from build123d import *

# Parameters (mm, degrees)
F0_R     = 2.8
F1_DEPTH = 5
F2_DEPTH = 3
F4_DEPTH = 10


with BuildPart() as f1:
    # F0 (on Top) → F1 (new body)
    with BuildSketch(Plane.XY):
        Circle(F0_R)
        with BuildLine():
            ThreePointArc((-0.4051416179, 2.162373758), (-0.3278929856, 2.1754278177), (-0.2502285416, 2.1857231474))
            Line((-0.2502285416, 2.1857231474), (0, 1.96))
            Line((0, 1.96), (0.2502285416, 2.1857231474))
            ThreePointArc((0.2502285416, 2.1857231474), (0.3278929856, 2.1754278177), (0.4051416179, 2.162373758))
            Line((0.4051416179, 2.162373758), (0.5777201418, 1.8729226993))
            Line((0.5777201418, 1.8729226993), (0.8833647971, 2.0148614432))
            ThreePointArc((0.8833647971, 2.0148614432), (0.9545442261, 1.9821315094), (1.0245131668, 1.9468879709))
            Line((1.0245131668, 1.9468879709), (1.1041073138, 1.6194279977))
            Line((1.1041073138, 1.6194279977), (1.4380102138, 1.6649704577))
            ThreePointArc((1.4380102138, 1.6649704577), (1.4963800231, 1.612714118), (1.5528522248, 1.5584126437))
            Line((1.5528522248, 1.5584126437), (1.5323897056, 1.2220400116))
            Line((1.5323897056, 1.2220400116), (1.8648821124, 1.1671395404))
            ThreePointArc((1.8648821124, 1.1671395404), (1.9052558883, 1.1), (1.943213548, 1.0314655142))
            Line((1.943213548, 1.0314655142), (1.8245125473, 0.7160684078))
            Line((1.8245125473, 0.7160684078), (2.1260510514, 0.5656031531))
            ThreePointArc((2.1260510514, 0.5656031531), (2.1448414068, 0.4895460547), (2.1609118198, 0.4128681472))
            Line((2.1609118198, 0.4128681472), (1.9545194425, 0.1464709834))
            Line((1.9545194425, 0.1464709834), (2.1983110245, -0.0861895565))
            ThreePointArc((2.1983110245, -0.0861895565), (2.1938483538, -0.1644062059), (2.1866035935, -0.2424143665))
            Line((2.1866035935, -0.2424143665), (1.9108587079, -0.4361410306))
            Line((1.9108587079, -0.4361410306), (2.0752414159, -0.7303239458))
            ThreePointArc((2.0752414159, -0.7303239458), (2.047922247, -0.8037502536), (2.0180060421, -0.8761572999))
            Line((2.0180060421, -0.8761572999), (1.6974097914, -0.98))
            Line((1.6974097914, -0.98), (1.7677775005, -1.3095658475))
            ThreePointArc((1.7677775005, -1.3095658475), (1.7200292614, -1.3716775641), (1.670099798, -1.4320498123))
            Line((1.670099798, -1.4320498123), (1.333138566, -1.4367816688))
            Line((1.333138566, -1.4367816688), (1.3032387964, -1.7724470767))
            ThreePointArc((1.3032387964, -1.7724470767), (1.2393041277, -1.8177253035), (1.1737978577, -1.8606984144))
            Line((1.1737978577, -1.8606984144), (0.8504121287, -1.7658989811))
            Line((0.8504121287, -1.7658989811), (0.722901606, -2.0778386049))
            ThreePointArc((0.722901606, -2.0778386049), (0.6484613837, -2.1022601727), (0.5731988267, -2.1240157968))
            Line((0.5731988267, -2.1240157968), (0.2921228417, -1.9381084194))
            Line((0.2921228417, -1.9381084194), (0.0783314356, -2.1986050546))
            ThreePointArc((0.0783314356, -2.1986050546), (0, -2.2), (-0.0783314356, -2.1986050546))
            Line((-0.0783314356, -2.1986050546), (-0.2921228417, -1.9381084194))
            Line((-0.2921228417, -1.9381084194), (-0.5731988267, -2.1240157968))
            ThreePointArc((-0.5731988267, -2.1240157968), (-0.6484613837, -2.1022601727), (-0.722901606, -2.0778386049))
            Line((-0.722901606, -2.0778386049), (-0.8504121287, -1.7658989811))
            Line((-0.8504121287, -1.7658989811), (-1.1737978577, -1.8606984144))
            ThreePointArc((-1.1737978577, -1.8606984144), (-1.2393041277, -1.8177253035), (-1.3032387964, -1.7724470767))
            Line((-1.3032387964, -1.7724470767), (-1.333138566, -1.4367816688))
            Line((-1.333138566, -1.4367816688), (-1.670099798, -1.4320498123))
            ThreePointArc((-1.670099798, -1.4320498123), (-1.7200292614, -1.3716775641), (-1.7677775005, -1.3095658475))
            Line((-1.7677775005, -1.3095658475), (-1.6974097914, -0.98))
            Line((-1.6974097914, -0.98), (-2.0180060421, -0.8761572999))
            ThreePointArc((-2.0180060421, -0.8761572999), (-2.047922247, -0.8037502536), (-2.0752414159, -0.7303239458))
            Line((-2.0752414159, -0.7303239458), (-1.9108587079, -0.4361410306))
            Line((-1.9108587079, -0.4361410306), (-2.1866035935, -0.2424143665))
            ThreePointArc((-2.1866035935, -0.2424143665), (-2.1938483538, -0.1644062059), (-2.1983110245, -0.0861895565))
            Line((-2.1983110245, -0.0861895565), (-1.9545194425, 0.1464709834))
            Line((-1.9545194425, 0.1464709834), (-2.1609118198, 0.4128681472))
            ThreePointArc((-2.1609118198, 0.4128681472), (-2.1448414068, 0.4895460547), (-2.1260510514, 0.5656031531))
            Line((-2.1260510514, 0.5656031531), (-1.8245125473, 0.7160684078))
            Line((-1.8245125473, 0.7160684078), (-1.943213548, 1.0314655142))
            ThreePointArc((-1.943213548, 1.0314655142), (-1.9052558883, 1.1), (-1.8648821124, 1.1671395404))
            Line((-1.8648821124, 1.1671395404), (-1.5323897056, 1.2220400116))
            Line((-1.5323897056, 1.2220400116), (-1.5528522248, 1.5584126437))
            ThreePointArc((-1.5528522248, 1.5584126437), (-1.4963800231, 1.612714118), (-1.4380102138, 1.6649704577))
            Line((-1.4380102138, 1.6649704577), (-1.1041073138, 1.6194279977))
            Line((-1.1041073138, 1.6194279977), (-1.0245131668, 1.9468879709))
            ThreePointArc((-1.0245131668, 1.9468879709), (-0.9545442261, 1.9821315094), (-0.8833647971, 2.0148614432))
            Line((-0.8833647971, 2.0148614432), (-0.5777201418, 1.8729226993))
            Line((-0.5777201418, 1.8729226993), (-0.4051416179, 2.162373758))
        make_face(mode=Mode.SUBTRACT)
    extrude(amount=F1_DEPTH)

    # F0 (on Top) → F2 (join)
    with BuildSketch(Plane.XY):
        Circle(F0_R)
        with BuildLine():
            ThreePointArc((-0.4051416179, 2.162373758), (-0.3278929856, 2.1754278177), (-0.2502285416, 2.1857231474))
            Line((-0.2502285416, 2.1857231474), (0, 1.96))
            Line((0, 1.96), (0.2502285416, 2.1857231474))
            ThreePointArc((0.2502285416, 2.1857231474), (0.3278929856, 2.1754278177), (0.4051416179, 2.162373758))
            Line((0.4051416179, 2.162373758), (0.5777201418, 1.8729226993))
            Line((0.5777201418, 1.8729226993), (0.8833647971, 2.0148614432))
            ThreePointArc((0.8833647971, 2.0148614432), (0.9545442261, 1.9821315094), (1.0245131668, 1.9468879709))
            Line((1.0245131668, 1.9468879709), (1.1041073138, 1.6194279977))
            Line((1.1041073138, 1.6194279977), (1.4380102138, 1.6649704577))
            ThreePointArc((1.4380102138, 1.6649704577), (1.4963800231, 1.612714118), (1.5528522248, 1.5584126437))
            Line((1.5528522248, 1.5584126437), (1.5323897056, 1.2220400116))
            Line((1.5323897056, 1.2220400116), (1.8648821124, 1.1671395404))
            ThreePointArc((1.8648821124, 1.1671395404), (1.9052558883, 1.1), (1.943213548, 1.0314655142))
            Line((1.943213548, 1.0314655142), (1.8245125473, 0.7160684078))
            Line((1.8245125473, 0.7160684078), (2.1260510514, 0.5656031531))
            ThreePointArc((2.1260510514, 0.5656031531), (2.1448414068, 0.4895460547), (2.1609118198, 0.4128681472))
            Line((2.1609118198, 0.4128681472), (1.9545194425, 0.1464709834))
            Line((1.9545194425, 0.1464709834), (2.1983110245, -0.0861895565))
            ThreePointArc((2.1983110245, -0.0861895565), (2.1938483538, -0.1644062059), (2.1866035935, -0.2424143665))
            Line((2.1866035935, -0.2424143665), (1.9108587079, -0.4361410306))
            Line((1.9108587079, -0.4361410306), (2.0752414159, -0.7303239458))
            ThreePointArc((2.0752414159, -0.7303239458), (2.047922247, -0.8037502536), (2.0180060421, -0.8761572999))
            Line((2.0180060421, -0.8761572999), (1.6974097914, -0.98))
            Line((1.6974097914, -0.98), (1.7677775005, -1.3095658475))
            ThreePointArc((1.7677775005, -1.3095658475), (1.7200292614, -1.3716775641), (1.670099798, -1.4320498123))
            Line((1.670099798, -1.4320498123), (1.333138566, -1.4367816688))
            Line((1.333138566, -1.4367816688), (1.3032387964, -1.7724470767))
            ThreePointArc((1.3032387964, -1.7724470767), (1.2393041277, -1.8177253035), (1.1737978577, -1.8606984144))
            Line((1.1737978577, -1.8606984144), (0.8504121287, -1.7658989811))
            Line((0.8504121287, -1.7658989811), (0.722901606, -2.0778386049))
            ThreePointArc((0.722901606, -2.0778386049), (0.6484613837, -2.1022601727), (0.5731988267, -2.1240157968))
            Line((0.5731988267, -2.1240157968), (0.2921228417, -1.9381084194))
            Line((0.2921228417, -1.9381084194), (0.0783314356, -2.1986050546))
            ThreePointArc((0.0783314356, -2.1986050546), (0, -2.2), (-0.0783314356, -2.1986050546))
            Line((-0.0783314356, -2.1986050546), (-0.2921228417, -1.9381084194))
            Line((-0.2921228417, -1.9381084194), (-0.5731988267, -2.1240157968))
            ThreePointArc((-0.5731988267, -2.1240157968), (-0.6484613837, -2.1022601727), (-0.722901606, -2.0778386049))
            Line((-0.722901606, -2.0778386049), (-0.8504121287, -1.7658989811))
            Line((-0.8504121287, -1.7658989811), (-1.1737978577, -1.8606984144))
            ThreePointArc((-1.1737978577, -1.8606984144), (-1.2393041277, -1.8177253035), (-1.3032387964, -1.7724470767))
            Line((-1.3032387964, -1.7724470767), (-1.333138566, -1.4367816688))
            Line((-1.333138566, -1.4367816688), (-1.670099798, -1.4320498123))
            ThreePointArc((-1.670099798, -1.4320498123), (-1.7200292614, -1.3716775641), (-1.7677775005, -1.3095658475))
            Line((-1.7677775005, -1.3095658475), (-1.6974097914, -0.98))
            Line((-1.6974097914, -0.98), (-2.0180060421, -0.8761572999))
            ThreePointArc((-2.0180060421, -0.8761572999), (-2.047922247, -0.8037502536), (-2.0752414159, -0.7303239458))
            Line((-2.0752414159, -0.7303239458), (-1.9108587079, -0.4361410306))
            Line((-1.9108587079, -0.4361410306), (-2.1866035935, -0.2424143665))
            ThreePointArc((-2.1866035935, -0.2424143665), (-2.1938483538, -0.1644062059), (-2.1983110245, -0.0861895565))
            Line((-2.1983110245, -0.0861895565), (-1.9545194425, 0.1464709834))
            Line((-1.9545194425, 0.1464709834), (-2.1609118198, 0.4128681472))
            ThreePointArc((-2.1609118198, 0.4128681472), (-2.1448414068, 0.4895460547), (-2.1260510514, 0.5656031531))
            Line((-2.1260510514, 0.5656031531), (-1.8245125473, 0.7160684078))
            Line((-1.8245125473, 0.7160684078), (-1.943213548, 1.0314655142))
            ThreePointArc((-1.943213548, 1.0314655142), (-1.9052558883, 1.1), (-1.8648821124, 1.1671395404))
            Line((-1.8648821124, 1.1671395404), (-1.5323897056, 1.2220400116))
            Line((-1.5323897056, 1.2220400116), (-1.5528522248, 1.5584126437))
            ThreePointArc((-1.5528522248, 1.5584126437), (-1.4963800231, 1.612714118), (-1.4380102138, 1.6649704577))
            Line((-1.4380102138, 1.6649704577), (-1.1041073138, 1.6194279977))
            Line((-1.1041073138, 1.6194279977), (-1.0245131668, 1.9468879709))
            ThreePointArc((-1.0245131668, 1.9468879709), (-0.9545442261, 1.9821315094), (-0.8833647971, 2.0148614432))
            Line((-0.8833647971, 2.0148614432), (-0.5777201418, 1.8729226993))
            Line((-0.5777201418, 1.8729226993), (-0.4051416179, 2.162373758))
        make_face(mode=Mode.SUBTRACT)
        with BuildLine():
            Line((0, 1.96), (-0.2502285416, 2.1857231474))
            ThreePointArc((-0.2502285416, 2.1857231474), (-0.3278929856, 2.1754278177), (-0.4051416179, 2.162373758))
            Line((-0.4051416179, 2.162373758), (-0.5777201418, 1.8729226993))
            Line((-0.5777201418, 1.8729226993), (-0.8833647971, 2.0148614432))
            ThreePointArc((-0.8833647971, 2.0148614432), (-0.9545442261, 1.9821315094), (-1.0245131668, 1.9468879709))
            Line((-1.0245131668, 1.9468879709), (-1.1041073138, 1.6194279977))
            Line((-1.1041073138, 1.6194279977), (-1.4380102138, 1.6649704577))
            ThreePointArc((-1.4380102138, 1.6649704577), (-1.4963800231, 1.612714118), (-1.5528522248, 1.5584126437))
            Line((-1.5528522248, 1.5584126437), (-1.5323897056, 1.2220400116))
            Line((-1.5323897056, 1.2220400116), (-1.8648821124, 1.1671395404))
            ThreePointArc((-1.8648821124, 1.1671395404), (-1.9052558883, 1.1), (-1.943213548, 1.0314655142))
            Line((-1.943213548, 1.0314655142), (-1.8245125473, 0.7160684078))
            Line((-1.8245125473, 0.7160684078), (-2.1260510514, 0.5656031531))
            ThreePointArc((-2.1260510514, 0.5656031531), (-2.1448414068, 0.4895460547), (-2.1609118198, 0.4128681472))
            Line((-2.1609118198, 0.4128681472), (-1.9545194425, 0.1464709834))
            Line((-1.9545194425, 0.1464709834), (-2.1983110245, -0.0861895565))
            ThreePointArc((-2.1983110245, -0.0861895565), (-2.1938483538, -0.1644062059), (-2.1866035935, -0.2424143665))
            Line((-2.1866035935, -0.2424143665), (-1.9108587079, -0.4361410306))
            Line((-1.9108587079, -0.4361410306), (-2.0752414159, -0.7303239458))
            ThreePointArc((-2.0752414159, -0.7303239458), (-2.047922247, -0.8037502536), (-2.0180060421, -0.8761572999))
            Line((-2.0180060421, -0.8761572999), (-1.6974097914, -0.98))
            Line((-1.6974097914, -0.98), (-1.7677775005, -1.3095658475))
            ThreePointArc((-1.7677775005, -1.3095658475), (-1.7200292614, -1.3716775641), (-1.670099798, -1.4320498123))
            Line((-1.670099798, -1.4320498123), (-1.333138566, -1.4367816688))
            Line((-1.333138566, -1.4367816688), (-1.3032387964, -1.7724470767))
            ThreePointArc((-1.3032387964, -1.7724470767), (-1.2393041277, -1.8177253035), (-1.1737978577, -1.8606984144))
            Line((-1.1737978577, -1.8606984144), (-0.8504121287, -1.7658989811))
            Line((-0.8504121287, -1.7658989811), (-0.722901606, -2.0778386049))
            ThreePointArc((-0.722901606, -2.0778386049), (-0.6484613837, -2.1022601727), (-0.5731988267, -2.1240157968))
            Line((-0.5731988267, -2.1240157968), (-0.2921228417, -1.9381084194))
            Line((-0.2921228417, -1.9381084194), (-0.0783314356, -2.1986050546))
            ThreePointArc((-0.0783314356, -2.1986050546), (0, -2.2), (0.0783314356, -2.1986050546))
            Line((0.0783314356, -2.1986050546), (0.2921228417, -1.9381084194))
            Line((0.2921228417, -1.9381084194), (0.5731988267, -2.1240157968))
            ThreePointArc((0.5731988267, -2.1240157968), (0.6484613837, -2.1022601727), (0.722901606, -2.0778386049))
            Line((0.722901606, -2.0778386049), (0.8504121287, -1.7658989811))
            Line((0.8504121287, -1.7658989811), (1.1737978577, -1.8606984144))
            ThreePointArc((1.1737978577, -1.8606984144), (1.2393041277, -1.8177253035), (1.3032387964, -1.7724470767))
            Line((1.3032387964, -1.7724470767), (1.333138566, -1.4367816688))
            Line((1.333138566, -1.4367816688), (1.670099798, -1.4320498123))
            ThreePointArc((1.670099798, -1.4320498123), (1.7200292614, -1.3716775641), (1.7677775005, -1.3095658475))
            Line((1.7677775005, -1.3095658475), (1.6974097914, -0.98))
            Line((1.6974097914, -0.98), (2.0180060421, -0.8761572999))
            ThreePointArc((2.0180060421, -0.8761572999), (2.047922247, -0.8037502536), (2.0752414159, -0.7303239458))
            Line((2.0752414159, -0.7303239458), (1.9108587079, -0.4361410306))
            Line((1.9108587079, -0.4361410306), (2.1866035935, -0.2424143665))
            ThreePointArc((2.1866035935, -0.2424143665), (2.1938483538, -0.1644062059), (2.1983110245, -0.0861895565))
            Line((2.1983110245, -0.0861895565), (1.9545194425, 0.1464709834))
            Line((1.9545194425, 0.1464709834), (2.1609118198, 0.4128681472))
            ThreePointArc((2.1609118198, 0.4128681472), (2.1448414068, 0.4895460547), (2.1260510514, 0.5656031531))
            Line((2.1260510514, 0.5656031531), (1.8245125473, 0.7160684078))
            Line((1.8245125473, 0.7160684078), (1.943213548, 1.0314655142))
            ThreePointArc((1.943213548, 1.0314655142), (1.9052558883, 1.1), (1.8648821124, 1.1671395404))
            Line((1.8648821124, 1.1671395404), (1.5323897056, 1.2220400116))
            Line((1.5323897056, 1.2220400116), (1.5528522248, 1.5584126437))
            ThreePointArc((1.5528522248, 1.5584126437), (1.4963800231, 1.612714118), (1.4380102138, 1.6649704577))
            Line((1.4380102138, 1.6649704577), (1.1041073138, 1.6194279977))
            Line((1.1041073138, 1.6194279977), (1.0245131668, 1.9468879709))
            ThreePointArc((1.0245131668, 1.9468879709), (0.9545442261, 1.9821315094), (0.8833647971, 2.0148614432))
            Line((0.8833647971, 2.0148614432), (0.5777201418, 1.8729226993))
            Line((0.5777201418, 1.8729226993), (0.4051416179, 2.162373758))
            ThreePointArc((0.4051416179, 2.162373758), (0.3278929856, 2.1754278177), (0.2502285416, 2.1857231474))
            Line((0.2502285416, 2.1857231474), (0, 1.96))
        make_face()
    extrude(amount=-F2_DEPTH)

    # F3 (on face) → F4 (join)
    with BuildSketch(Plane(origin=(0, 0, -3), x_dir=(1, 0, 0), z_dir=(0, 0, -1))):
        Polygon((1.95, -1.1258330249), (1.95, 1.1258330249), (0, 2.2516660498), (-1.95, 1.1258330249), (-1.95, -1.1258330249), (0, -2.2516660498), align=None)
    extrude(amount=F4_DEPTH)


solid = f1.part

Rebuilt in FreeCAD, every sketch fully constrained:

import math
import FreeCAD as App
import Part
import Sketcher
Q = App.Units.Quantity


def add_polygon(sketch, points):
    """Adds a closed chain of lines whose ends are joined by coincident constraints."""
    first, n = sketch.GeometryCount, len(points)
    for a, b in zip(points, points[1:] + points[:1]):
        sketch.addGeometry(Part.LineSegment(App.Vector(*a, 0), App.Vector(*b, 0)), False)
    for i in range(n):
        sketch.addConstraint(Sketcher.Constraint("Coincident", first + i, 2, first + (i + 1) % n, 1))

doc = App.newDocument("Part")
body = doc.addObject("PartDesign::Body", "Body")

sketch1 = body.newObject("Sketcher::SketchObject", "Sketch")
sketch1.AttachmentSupport = (doc.getObject("XY_Plane"), [""])
sketch1.MapMode = "FlatFace"
sketch1.addGeometry(Part.Circle(App.Vector(0, 0, 0), App.Vector(0, 0, 1), 2.8), False)
sketch1.addGeometry(Part.LineSegment(App.Vector(-0.58, 1.87, 0), App.Vector(-0.41, 2.16, 0)), False)
sketch1.addGeometry(Part.ArcOfCircle(Part.Circle(App.Vector(0, 0, 0), App.Vector(0, 0, 1), 2.2), math.radians(96.53), math.radians(100.61)), False)
sketch1.addGeometry(Part.LineSegment(App.Vector(-0.25, 2.19, 0), App.Vector(0, 1.96, 0)), False)
sketch1.addGeometry(Part.LineSegment(App.Vector(0, 1.96, 0), App.Vector(0.25, 2.19, 0)), False)
sketch1.addGeometry(Part.ArcOfCircle(Part.Circle(App.Vector(0, 0, 0), App.Vector(0, 0, 1), 2.2), math.radians(79.39), math.radians(83.47)), False)
sketch1.addGeometry(Part.LineSegment(App.Vector(0.41, 2.16, 0), App.Vector(0.58, 1.87, 0)), False)
sketch1.addGeometry(Part.LineSegment(App.Vector(0.58, 1.87, 0), App.Vector(0.88, 2.01, 0)), False)
sketch1.addGeometry(Part.ArcOfCircle(Part.Circle(App.Vector(0, 0, 0), App.Vector(0, 0, 1), 2.2), math.radians(62.25), math.radians(66.33)), False)
sketch1.addGeometry(Part.LineSegment(App.Vector(1.02, 1.95, 0), App.Vector(1.1, 1.62, 0)), False)
sketch1.addGeometry(Part.LineSegment(App.Vector(1.1, 1.62, 0), App.Vector(1.44, 1.66, 0)), False)
sketch1.addGeometry(Part.ArcOfCircle(Part.Circle(App.Vector(0, 0, 0), App.Vector(0, 0, 1), 2.2), math.radians(45.1), math.radians(49.18)), False)
sketch1.addGeometry(Part.LineSegment(App.Vector(1.55, 1.56, 0), App.Vector(1.53, 1.22, 0)), False)
sketch1.addGeometry(Part.LineSegment(App.Vector(1.53, 1.22, 0), App.Vector(1.86, 1.17, 0)), False)
sketch1.addGeometry(Part.ArcOfCircle(Part.Circle(App.Vector(0, 0, 0), App.Vector(0, 0, 1), 2.2), math.radians(27.96), math.radians(32.04)), False)
sketch1.addGeometry(Part.LineSegment(App.Vector(1.94, 1.03, 0), App.Vector(1.82, 0.72, 0)), False)
sketch1.addGeometry(Part.LineSegment(App.Vector(1.82, 0.72, 0), App.Vector(2.13, 0.57, 0)), False)
sketch1.addGeometry(Part.ArcOfCircle(Part.Circle(App.Vector(0, 0, 0), App.Vector(0, 0, 1), 2.2), math.radians(10.82), math.radians(14.9)), False)
sketch1.addGeometry(Part.LineSegment(App.Vector(2.16, 0.41, 0), App.Vector(1.95, 0.15, 0)), False)
sketch1.addGeometry(Part.LineSegment(App.Vector(1.95, 0.15, 0), App.Vector(2.2, -0.09, 0)), False)
sketch1.addGeometry(Part.ArcOfCircle(Part.Circle(App.Vector(0, 0, 0), App.Vector(0, 0, 1), 2.2), math.radians(-6.33), math.radians(-2.25)), False)
sketch1.addGeometry(Part.LineSegment(App.Vector(2.19, -0.24, 0), App.Vector(1.91, -0.44, 0)), False)
sketch1.addGeometry(Part.LineSegment(App.Vector(1.91, -0.44, 0), App.Vector(2.08, -0.73, 0)), False)
sketch1.addGeometry(Part.ArcOfCircle(Part.Circle(App.Vector(0, 0, 0), App.Vector(0, 0, 1), 2.2), math.radians(-23.47), math.radians(-19.39)), False)
sketch1.addGeometry(Part.LineSegment(App.Vector(2.02, -0.88, 0), App.Vector(1.7, -0.98, 0)), False)
sketch1.addGeometry(Part.LineSegment(App.Vector(1.7, -0.98, 0), App.Vector(1.77, -1.31, 0)), False)
sketch1.addGeometry(Part.ArcOfCircle(Part.Circle(App.Vector(0, 0, 0), App.Vector(0, 0, 1), 2.2), math.radians(-40.61), math.radians(-36.53)), False)
sketch1.addGeometry(Part.LineSegment(App.Vector(1.67, -1.43, 0), App.Vector(1.33, -1.44, 0)), False)
sketch1.addGeometry(Part.LineSegment(App.Vector(1.33, -1.44, 0), App.Vector(1.3, -1.77, 0)), False)
sketch1.addGeometry(Part.ArcOfCircle(Part.Circle(App.Vector(0, 0, 0), App.Vector(0, 0, 1), 2.2), math.radians(-57.75), math.radians(-53.67)), False)
sketch1.addGeometry(Part.LineSegment(App.Vector(1.17, -1.86, 0), App.Vector(0.85, -1.77, 0)), False)
sketch1.addGeometry(Part.LineSegment(App.Vector(0.85, -1.77, 0), App.Vector(0.72, -2.08, 0)), False)
sketch1.addGeometry(Part.ArcOfCircle(Part.Circle(App.Vector(0, 0, 0), App.Vector(0, 0, 1), 2.2), math.radians(-74.9), math.radians(-70.82)), False)
sketch1.addGeometry(Part.LineSegment(App.Vector(0.57, -2.12, 0), App.Vector(0.29, -1.94, 0)), False)
sketch1.addGeometry(Part.LineSegment(App.Vector(0.29, -1.94, 0), App.Vector(0.08, -2.2, 0)), False)
sketch1.addGeometry(Part.ArcOfCircle(Part.Circle(App.Vector(0, 0, 0), App.Vector(0, 0, 1), 2.2), math.radians(-92.04), math.radians(-87.96)), False)
sketch1.addGeometry(Part.LineSegment(App.Vector(-0.08, -2.2, 0), App.Vector(-0.29, -1.94, 0)), False)
sketch1.addGeometry(Part.LineSegment(App.Vector(-0.29, -1.94, 0), App.Vector(-0.57, -2.12, 0)), False)
sketch1.addGeometry(Part.ArcOfCircle(Part.Circle(App.Vector(0, 0, 0), App.Vector(0, 0, 1), 2.2), math.radians(-109.18), math.radians(-105.1)), False)
sketch1.addGeometry(Part.LineSegment(App.Vector(-0.72, -2.08, 0), App.Vector(-0.85, -1.77, 0)), False)
sketch1.addGeometry(Part.LineSegment(App.Vector(-0.85, -1.77, 0), App.Vector(-1.17, -1.86, 0)), False)
sketch1.addGeometry(Part.ArcOfCircle(Part.Circle(App.Vector(0, 0, 0), App.Vector(0, 0, 1), 2.2), math.radians(-126.33), math.radians(-122.25)), False)
sketch1.addGeometry(Part.LineSegment(App.Vector(-1.3, -1.77, 0), App.Vector(-1.33, -1.44, 0)), False)
sketch1.addGeometry(Part.LineSegment(App.Vector(-1.33, -1.44, 0), App.Vector(-1.67, -1.43, 0)), False)
sketch1.addGeometry(Part.ArcOfCircle(Part.Circle(App.Vector(0, 0, 0), App.Vector(0, 0, 1), 2.2), math.radians(-143.47), math.radians(-139.39)), False)
sketch1.addGeometry(Part.LineSegment(App.Vector(-1.77, -1.31, 0), App.Vector(-1.7, -0.98, 0)), False)
sketch1.addGeometry(Part.LineSegment(App.Vector(-1.7, -0.98, 0), App.Vector(-2.02, -0.88, 0)), False)
sketch1.addGeometry(Part.ArcOfCircle(Part.Circle(App.Vector(0, 0, 0), App.Vector(0, 0, 1), 2.2), math.radians(-160.61), math.radians(-156.53)), False)
sketch1.addGeometry(Part.LineSegment(App.Vector(-2.08, -0.73, 0), App.Vector(-1.91, -0.44, 0)), False)
sketch1.addGeometry(Part.LineSegment(App.Vector(-1.91, -0.44, 0), App.Vector(-2.19, -0.24, 0)), False)
sketch1.addGeometry(Part.ArcOfCircle(Part.Circle(App.Vector(0, 0, 0), App.Vector(0, 0, 1), 2.2), math.radians(-177.75), math.radians(-173.67)), False)
sketch1.addGeometry(Part.LineSegment(App.Vector(-2.2, -0.09, 0), App.Vector(-1.95, 0.15, 0)), False)
sketch1.addGeometry(Part.LineSegment(App.Vector(-1.95, 0.15, 0), App.Vector(-2.16, 0.41, 0)), False)
sketch1.addGeometry(Part.ArcOfCircle(Part.Circle(App.Vector(0, 0, 0), App.Vector(0, 0, 1), 2.2), math.radians(165.1), math.radians(169.18)), False)
sketch1.addGeometry(Part.LineSegment(App.Vector(-2.13, 0.57, 0), App.Vector(-1.82, 0.72, 0)), False)
sketch1.addGeometry(Part.LineSegment(App.Vector(-1.82, 0.72, 0), App.Vector(-1.94, 1.03, 0)), False)
sketch1.addGeometry(Part.ArcOfCircle(Part.Circle(App.Vector(0, 0, 0), App.Vector(0, 0, 1), 2.2), math.radians(147.96), math.radians(152.04)), False)
sketch1.addGeometry(Part.LineSegment(App.Vector(-1.86, 1.17, 0), App.Vector(-1.53, 1.22, 0)), False)
sketch1.addGeometry(Part.LineSegment(App.Vector(-1.53, 1.22, 0), App.Vector(-1.55, 1.56, 0)), False)
sketch1.addGeometry(Part.ArcOfCircle(Part.Circle(App.Vector(0, 0, 0), App.Vector(0, 0, 1), 2.2), math.radians(130.82), math.radians(134.9)), False)
sketch1.addGeometry(Part.LineSegment(App.Vector(-1.44, 1.66, 0), App.Vector(-1.1, 1.62, 0)), False)
sketch1.addGeometry(Part.LineSegment(App.Vector(-1.1, 1.62, 0), App.Vector(-1.02, 1.95, 0)), False)
sketch1.addGeometry(Part.ArcOfCircle(Part.Circle(App.Vector(0, 0, 0), App.Vector(0, 0, 1), 2.2), math.radians(113.67), math.radians(117.75)), False)
sketch1.addGeometry(Part.LineSegment(App.Vector(-0.88, 2.01, 0), App.Vector(-0.58, 1.87, 0)), False)
sketch1.addConstraint(Sketcher.Constraint("Coincident", 1, 2, 2, 2))
sketch1.addConstraint(Sketcher.Constraint("Coincident", 2, 1, 3, 1))
sketch1.addConstraint(Sketcher.Constraint("Coincident", 3, 2, 4, 1))
sketch1.addConstraint(Sketcher.Constraint("Coincident", 4, 2, 5, 2))
sketch1.addConstraint(Sketcher.Constraint("Coincident", 5, 1, 6, 1))
sketch1.addConstraint(Sketcher.Constraint("Coincident", 6, 2, 7, 1))
sketch1.addConstraint(Sketcher.Constraint("Coincident", 7, 2, 8, 2))
sketch1.addConstraint(Sketcher.Constraint("Coincident", 8, 1, 9, 1))
sketch1.addConstraint(Sketcher.Constraint("Coincident", 9, 2, 10, 1))
sketch1.addConstraint(Sketcher.Constraint("Coincident", 10, 2, 11, 2))
sketch1.addConstraint(Sketcher.Constraint("Coincident", 11, 1, 12, 1))
sketch1.addConstraint(Sketcher.Constraint("Coincident", 12, 2, 13, 1))
sketch1.addConstraint(Sketcher.Constraint("Coincident", 13, 2, 14, 2))
sketch1.addConstraint(Sketcher.Constraint("Coincident", 14, 1, 15, 1))
sketch1.addConstraint(Sketcher.Constraint("Coincident", 15, 2, 16, 1))
sketch1.addConstraint(Sketcher.Constraint("Coincident", 16, 2, 17, 2))
sketch1.addConstraint(Sketcher.Constraint("Coincident", 17, 1, 18, 1))
sketch1.addConstraint(Sketcher.Constraint("Coincident", 18, 2, 19, 1))
sketch1.addConstraint(Sketcher.Constraint("Coincident", 19, 2, 20, 2))
sketch1.addConstraint(Sketcher.Constraint("Coincident", 20, 1, 21, 1))
sketch1.addConstraint(Sketcher.Constraint("Coincident", 21, 2, 22, 1))
sketch1.addConstraint(Sketcher.Constraint("Coincident", 22, 2, 23, 2))
sketch1.addConstraint(Sketcher.Constraint("Coincident", 23, 1, 24, 1))
sketch1.addConstraint(Sketcher.Constraint("Coincident", 24, 2, 25, 1))
sketch1.addConstraint(Sketcher.Constraint("Coincident", 25, 2, 26, 2))
sketch1.addConstraint(Sketcher.Constraint("Coincident", 26, 1, 27, 1))
sketch1.addConstraint(Sketcher.Constraint("Coincident", 27, 2, 28, 1))
sketch1.addConstraint(Sketcher.Constraint("Coincident", 28, 2, 29, 2))
sketch1.addConstraint(Sketcher.Constraint("Coincident", 29, 1, 30, 1))
sketch1.addConstraint(Sketcher.Constraint("Coincident", 30, 2, 31, 1))
sketch1.addConstraint(Sketcher.Constraint("Coincident", 31, 2, 32, 2))
sketch1.addConstraint(Sketcher.Constraint("Coincident", 32, 1, 33, 1))
sketch1.addConstraint(Sketcher.Constraint("Coincident", 33, 2, 34, 1))
sketch1.addConstraint(Sketcher.Constraint("Coincident", 34, 2, 35, 2))
sketch1.addConstraint(Sketcher.Constraint("Coincident", 35, 1, 36, 1))
sketch1.addConstraint(Sketcher.Constraint("Coincident", 36, 2, 37, 1))
sketch1.addConstraint(Sketcher.Constraint("Coincident", 37, 2, 38, 2))
sketch1.addConstraint(Sketcher.Constraint("Coincident", 38, 1, 39, 1))
sketch1.addConstraint(Sketcher.Constraint("Coincident", 39, 2, 40, 1))
sketch1.addConstraint(Sketcher.Constraint("Coincident", 40, 2, 41, 2))
sketch1.addConstraint(Sketcher.Constraint("Coincident", 41, 1, 42, 1))
sketch1.addConstraint(Sketcher.Constraint("Coincident", 42, 2, 43, 1))
sketch1.addConstraint(Sketcher.Constraint("Coincident", 43, 2, 44, 2))
sketch1.addConstraint(Sketcher.Constraint("Coincident", 44, 1, 45, 1))
sketch1.addConstraint(Sketcher.Constraint("Coincident", 45, 2, 46, 1))
sketch1.addConstraint(Sketcher.Constraint("Coincident", 46, 2, 47, 2))
sketch1.addConstraint(Sketcher.Constraint("Coincident", 47, 1, 48, 1))
sketch1.addConstraint(Sketcher.Constraint("Coincident", 48, 2, 49, 1))
sketch1.addConstraint(Sketcher.Constraint("Coincident", 49, 2, 50, 2))
sketch1.addConstraint(Sketcher.Constraint("Coincident", 50, 1, 51, 1))
sketch1.addConstraint(Sketcher.Constraint("Coincident", 51, 2, 52, 1))
sketch1.addConstraint(Sketcher.Constraint("Coincident", 52, 2, 53, 2))
sketch1.addConstraint(Sketcher.Constraint("Coincident", 53, 1, 54, 1))
sketch1.addConstraint(Sketcher.Constraint("Coincident", 54, 2, 55, 1))
sketch1.addConstraint(Sketcher.Constraint("Coincident", 55, 2, 56, 2))
sketch1.addConstraint(Sketcher.Constraint("Coincident", 56, 1, 57, 1))
sketch1.addConstraint(Sketcher.Constraint("Coincident", 57, 2, 58, 1))
sketch1.addConstraint(Sketcher.Constraint("Coincident", 58, 2, 59, 2))
sketch1.addConstraint(Sketcher.Constraint("Coincident", 59, 1, 60, 1))
sketch1.addConstraint(Sketcher.Constraint("Coincident", 60, 2, 61, 1))
sketch1.addConstraint(Sketcher.Constraint("Coincident", 61, 2, 62, 2))
sketch1.addConstraint(Sketcher.Constraint("Coincident", 62, 1, 63, 1))
sketch1.addConstraint(Sketcher.Constraint("Coincident", 63, 2, 1, 1))
sketch1.addConstraint(Sketcher.Constraint("Coincident", 0, 3, -1, 1))
sketch1.addConstraint(Sketcher.Constraint("Coincident", 2, 3, -1, 1))
sketch1.addConstraint(Sketcher.Constraint("Coincident", 5, 3, -1, 1))
sketch1.addConstraint(Sketcher.Constraint("Coincident", 8, 3, -1, 1))
sketch1.addConstraint(Sketcher.Constraint("Coincident", 11, 3, -1, 1))
sketch1.addConstraint(Sketcher.Constraint("Coincident", 14, 3, -1, 1))
sketch1.addConstraint(Sketcher.Constraint("Coincident", 17, 3, -1, 1))
sketch1.addConstraint(Sketcher.Constraint("Coincident", 20, 3, -1, 1))
sketch1.addConstraint(Sketcher.Constraint("Coincident", 23, 3, -1, 1))
sketch1.addConstraint(Sketcher.Constraint("Coincident", 26, 3, -1, 1))
sketch1.addConstraint(Sketcher.Constraint("Coincident", 29, 3, -1, 1))
sketch1.addConstraint(Sketcher.Constraint("Coincident", 32, 3, -1, 1))
sketch1.addConstraint(Sketcher.Constraint("Coincident", 35, 3, -1, 1))
sketch1.addConstraint(Sketcher.Constraint("Coincident", 38, 3, -1, 1))
sketch1.addConstraint(Sketcher.Constraint("Coincident", 41, 3, -1, 1))
sketch1.addConstraint(Sketcher.Constraint("Coincident", 44, 3, -1, 1))
sketch1.addConstraint(Sketcher.Constraint("Coincident", 47, 3, -1, 1))
sketch1.addConstraint(Sketcher.Constraint("Coincident", 50, 3, -1, 1))
sketch1.addConstraint(Sketcher.Constraint("Coincident", 53, 3, -1, 1))
sketch1.addConstraint(Sketcher.Constraint("Coincident", 56, 3, -1, 1))
sketch1.addConstraint(Sketcher.Constraint("Coincident", 59, 3, -1, 1))
sketch1.addConstraint(Sketcher.Constraint("Coincident", 62, 3, -1, 1))
sketch1.addConstraint(Sketcher.Constraint("Equal", 2, 5))
sketch1.addConstraint(Sketcher.Constraint("Equal", 5, 8))
sketch1.addConstraint(Sketcher.Constraint("Equal", 8, 11))
sketch1.addConstraint(Sketcher.Constraint("Equal", 11, 14))
sketch1.addConstraint(Sketcher.Constraint("Equal", 14, 17))
sketch1.addConstraint(Sketcher.Constraint("Equal", 17, 20))
sketch1.addConstraint(Sketcher.Constraint("Equal", 20, 23))
sketch1.addConstraint(Sketcher.Constraint("Equal", 23, 26))
sketch1.addConstraint(Sketcher.Constraint("Equal", 26, 29))
sketch1.addConstraint(Sketcher.Constraint("Equal", 29, 32))
sketch1.addConstraint(Sketcher.Constraint("Equal", 32, 35))
sketch1.addConstraint(Sketcher.Constraint("Equal", 35, 38))
sketch1.addConstraint(Sketcher.Constraint("Equal", 38, 41))
sketch1.addConstraint(Sketcher.Constraint("Equal", 41, 44))
sketch1.addConstraint(Sketcher.Constraint("Equal", 44, 47))
sketch1.addConstraint(Sketcher.Constraint("Equal", 47, 50))
sketch1.addConstraint(Sketcher.Constraint("Equal", 50, 53))
sketch1.addConstraint(Sketcher.Constraint("Equal", 53, 56))
sketch1.addConstraint(Sketcher.Constraint("Equal", 56, 59))
sketch1.addConstraint(Sketcher.Constraint("Equal", 59, 62))
sketch1.addConstraint(Sketcher.Constraint("Symmetric", 33, 2, 36, 2, -2))
sketch1.addConstraint(Sketcher.Constraint("Symmetric", 30, 2, 39, 2, -2))
sketch1.addConstraint(Sketcher.Constraint("Symmetric", 27, 2, 42, 2, -2))
sketch1.addConstraint(Sketcher.Constraint("Symmetric", 24, 2, 45, 2, -2))
sketch1.addConstraint(Sketcher.Constraint("Symmetric", 21, 2, 48, 2, -2))
sketch1.addConstraint(Sketcher.Constraint("Symmetric", 18, 2, 51, 2, -2))
sketch1.addConstraint(Sketcher.Constraint("Symmetric", 15, 2, 54, 2, -2))
sketch1.addConstraint(Sketcher.Constraint("Symmetric", 12, 2, 57, 2, -2))
sketch1.addConstraint(Sketcher.Constraint("Symmetric", 9, 2, 60, 2, -2))
sketch1.addConstraint(Sketcher.Constraint("Symmetric", 6, 2, 63, 2, -2))
sketch1.addConstraint(Sketcher.Constraint("PointOnObject", 3, 2, -2))
sketch1.addConstraint(Sketcher.Constraint("Horizontal", 2, 1, 4, 2))
sketch1.addConstraint(Sketcher.Constraint("Horizontal", 1, 2, 5, 1))
sketch1.addConstraint(Sketcher.Constraint("Horizontal", 34, 2, 35, 1))
sketch1.addConstraint(Sketcher.Constraint("Horizontal", 32, 1, 37, 2))
sketch1.addConstraint(Sketcher.Constraint("Horizontal", 31, 2, 38, 1))
sketch1.addConstraint(Sketcher.Constraint("Horizontal", 29, 1, 40, 2))
sketch1.addConstraint(Sketcher.Constraint("Horizontal", 28, 2, 41, 1))
sketch1.addConstraint(Sketcher.Constraint("Horizontal", 26, 1, 43, 2))
sketch1.addConstraint(Sketcher.Constraint("Horizontal", 25, 2, 44, 1))
sketch1.addConstraint(Sketcher.Constraint("Horizontal", 23, 1, 46, 2))
sketch1.addConstraint(Sketcher.Constraint("Horizontal", 22, 2, 47, 1))
sketch1.addConstraint(Sketcher.Constraint("Horizontal", 20, 1, 49, 2))
sketch1.addConstraint(Sketcher.Constraint("Horizontal", 19, 2, 50, 1))
sketch1.addConstraint(Sketcher.Constraint("Horizontal", 17, 1, 52, 2))
sketch1.addConstraint(Sketcher.Constraint("Horizontal", 16, 2, 53, 1))
sketch1.addConstraint(Sketcher.Constraint("Horizontal", 14, 1, 55, 2))
sketch1.addConstraint(Sketcher.Constraint("Horizontal", 13, 2, 56, 1))
sketch1.addConstraint(Sketcher.Constraint("Horizontal", 11, 1, 58, 2))
sketch1.addConstraint(Sketcher.Constraint("Horizontal", 10, 2, 59, 1))
sketch1.addConstraint(Sketcher.Constraint("Horizontal", 8, 1, 61, 2))
sketch1.addConstraint(Sketcher.Constraint("Horizontal", 7, 2, 62, 1))
sketch1.addConstraint(Sketcher.Constraint("Equal", 1, 3))
sketch1.addConstraint(Sketcher.Constraint("Equal", 6, 7))
sketch1.addConstraint(Sketcher.Constraint("Equal", 7, 9))
sketch1.addConstraint(Sketcher.Constraint("Equal", 9, 10))
sketch1.addConstraint(Sketcher.Constraint("Equal", 10, 12))
sketch1.addConstraint(Sketcher.Constraint("Equal", 12, 13))
sketch1.addConstraint(Sketcher.Constraint("Equal", 13, 15))
sketch1.addConstraint(Sketcher.Constraint("Equal", 15, 16))
sketch1.addConstraint(Sketcher.Constraint("Equal", 16, 18))
sketch1.addConstraint(Sketcher.Constraint("Equal", 18, 19))
sketch1.addConstraint(Sketcher.Constraint("Equal", 19, 21))
sketch1.addConstraint(Sketcher.Constraint("Equal", 21, 22))
sketch1.addConstraint(Sketcher.Constraint("Equal", 22, 24))
sketch1.addConstraint(Sketcher.Constraint("Equal", 24, 25))
sketch1.addConstraint(Sketcher.Constraint("Equal", 25, 27))
sketch1.addConstraint(Sketcher.Constraint("Equal", 27, 28))
sketch1.addConstraint(Sketcher.Constraint("Equal", 28, 30))
sketch1.addConstraint(Sketcher.Constraint("Equal", 30, 31))
sketch1.addConstraint(Sketcher.Constraint("Equal", 31, 33))
sketch1.addConstraint(Sketcher.Constraint("Equal", 33, 34))
sketch1.addConstraint(Sketcher.Constraint("Diameter", 0, 5.6))
sketch1.addConstraint(Sketcher.Constraint("Radius", 2, 2.2))
sketch1.addConstraint(Sketcher.Constraint("DistanceY", -1, 1, 3, 2, 1.96))
sketch1.addConstraint(Sketcher.Constraint("DistanceY", 24, 2, -1, 1, 0.98))
sketch1.addConstraint(Sketcher.Constraint("DistanceX", -1, 1, 26, 1, 1.6701))
sketch1.addConstraint(Sketcher.Constraint("DistanceY", 29, 1, -1, 1, 1.860698))
sketch1.addConstraint(Sketcher.Constraint("DistanceY", 30, 2, -1, 1, 1.765899))
sketch1.addConstraint(Sketcher.Constraint("DistanceX", -1, 1, 31, 2, 0.722902))
sketch1.addConstraint(Sketcher.Constraint("DistanceX", -1, 1, 32, 1, 0.573199))
sketch1.addConstraint(Sketcher.Constraint("DistanceX", 1, 2, -1, 1, 0.405142))
sketch1.addConstraint(Sketcher.Constraint("DistanceX", -1, 1, 6, 2, 0.57772))
sketch1.addConstraint(Sketcher.Constraint("DistanceX", -1, 1, 10, 2, 1.43801))
sketch1.addConstraint(Sketcher.Constraint("DistanceX", -1, 1, 12, 2, 1.53239))
sketch1.addConstraint(Sketcher.Constraint("DistanceY", -1, 1, 12, 2, 1.22204))
sketch1.addConstraint(Sketcher.Constraint("DistanceY", -1, 1, 15, 2, 0.716068))
sketch1.addConstraint(Sketcher.Constraint("DistanceX", -1, 1, 16, 2, 2.126051))
sketch1.addConstraint(Sketcher.Constraint("DistanceX", -1, 1, 17, 1, 2.160912))
sketch1.addConstraint(Sketcher.Constraint("DistanceX", -1, 1, 18, 2, 1.954519))
sketch1.addConstraint(Sketcher.Constraint("DistanceX", -1, 1, 21, 2, 1.910859))
sketch1.addConstraint(Sketcher.Constraint("DistanceY", 21, 2, -1, 1, 0.436141))
sketch1.addConstraint(Sketcher.Constraint("DistanceX", -1, 1, 24, 2, 1.69741))
sketch1.addConstraint(Sketcher.Constraint("DistanceX", -1, 1, 27, 2, 1.333139))
sketch1.addConstraint(Sketcher.Constraint("DistanceY", 33, 2, -1, 1, 1.938108))
sketch1.addConstraint(Sketcher.Constraint("DistanceX", -1, 1, 8, 1, 1.024513))
pad1 = body.newObject("PartDesign::Pad", "Pad")
pad1.Profile = sketch1
pad1.Length = 5

sketch2 = body.newObject("Sketcher::SketchObject", "Sketch001")
sketch2.AttachmentSupport = (doc.getObject("XY_Plane"), [""])
sketch2.MapMode = "FlatFace"
sketch2.addGeometry(Part.Circle(App.Vector(0, 0, 0), App.Vector(0, 0, 1), 2.8), False)
sketch2.addConstraint(Sketcher.Constraint("Coincident", 0, 3, -1, 1))
sketch2.addConstraint(Sketcher.Constraint("Diameter", 0, 5.6))
pad2 = body.newObject("PartDesign::Pad", "Pad001")
pad2.Profile = sketch2
pad2.Length = 3
pad2.Reversed = True

sketch3 = body.newObject("Sketcher::SketchObject", "Sketch002")
sketch3.AttachmentSupport = (doc.getObject("XY_Plane"), [""])
sketch3.MapMode = "FlatFace"
sketch3.AttachmentOffset = App.Placement(App.Vector(0, 0, -3), App.Rotation())
add_polygon(sketch3, [(1.9, 1.1), (1.9, -1.1), (0, -2.3), (-1.9, -1.1), (-1.9, 1.1), (0, 2.3)])
sketch3.addConstraint(Sketcher.Constraint("Vertical", 0))
sketch3.addConstraint(Sketcher.Constraint("Vertical", 3))
sketch3.addConstraint(Sketcher.Constraint("Symmetric", 0, 2, 3, 2, -1, 1))
sketch3.addConstraint(Sketcher.Constraint("Symmetric", 1, 2, 4, 2, -1, 1))
sketch3.addConstraint(Sketcher.Constraint("PointOnObject", 1, 2, -2))
sketch3.addConstraint(Sketcher.Constraint("Parallel", 2, 5))
sketch3.addConstraint(Sketcher.Constraint("Horizontal", 0, 2, 2, 2))
sketch3.addConstraint(Sketcher.Constraint("Angle", 1, Q("-150 deg")))
sketch3.addConstraint(Sketcher.Constraint("DistanceX", 2, 2, 0, 2, 3.9))
sketch3.addConstraint(Sketcher.Constraint("DistanceY", 1, 2, 3, 2, 3.377499))
pad3 = body.newObject("PartDesign::Pad", "Pad002")
pad3.Profile = sketch3
pad3.Length = 10
pad3.Reversed = True

doc.recompute()
